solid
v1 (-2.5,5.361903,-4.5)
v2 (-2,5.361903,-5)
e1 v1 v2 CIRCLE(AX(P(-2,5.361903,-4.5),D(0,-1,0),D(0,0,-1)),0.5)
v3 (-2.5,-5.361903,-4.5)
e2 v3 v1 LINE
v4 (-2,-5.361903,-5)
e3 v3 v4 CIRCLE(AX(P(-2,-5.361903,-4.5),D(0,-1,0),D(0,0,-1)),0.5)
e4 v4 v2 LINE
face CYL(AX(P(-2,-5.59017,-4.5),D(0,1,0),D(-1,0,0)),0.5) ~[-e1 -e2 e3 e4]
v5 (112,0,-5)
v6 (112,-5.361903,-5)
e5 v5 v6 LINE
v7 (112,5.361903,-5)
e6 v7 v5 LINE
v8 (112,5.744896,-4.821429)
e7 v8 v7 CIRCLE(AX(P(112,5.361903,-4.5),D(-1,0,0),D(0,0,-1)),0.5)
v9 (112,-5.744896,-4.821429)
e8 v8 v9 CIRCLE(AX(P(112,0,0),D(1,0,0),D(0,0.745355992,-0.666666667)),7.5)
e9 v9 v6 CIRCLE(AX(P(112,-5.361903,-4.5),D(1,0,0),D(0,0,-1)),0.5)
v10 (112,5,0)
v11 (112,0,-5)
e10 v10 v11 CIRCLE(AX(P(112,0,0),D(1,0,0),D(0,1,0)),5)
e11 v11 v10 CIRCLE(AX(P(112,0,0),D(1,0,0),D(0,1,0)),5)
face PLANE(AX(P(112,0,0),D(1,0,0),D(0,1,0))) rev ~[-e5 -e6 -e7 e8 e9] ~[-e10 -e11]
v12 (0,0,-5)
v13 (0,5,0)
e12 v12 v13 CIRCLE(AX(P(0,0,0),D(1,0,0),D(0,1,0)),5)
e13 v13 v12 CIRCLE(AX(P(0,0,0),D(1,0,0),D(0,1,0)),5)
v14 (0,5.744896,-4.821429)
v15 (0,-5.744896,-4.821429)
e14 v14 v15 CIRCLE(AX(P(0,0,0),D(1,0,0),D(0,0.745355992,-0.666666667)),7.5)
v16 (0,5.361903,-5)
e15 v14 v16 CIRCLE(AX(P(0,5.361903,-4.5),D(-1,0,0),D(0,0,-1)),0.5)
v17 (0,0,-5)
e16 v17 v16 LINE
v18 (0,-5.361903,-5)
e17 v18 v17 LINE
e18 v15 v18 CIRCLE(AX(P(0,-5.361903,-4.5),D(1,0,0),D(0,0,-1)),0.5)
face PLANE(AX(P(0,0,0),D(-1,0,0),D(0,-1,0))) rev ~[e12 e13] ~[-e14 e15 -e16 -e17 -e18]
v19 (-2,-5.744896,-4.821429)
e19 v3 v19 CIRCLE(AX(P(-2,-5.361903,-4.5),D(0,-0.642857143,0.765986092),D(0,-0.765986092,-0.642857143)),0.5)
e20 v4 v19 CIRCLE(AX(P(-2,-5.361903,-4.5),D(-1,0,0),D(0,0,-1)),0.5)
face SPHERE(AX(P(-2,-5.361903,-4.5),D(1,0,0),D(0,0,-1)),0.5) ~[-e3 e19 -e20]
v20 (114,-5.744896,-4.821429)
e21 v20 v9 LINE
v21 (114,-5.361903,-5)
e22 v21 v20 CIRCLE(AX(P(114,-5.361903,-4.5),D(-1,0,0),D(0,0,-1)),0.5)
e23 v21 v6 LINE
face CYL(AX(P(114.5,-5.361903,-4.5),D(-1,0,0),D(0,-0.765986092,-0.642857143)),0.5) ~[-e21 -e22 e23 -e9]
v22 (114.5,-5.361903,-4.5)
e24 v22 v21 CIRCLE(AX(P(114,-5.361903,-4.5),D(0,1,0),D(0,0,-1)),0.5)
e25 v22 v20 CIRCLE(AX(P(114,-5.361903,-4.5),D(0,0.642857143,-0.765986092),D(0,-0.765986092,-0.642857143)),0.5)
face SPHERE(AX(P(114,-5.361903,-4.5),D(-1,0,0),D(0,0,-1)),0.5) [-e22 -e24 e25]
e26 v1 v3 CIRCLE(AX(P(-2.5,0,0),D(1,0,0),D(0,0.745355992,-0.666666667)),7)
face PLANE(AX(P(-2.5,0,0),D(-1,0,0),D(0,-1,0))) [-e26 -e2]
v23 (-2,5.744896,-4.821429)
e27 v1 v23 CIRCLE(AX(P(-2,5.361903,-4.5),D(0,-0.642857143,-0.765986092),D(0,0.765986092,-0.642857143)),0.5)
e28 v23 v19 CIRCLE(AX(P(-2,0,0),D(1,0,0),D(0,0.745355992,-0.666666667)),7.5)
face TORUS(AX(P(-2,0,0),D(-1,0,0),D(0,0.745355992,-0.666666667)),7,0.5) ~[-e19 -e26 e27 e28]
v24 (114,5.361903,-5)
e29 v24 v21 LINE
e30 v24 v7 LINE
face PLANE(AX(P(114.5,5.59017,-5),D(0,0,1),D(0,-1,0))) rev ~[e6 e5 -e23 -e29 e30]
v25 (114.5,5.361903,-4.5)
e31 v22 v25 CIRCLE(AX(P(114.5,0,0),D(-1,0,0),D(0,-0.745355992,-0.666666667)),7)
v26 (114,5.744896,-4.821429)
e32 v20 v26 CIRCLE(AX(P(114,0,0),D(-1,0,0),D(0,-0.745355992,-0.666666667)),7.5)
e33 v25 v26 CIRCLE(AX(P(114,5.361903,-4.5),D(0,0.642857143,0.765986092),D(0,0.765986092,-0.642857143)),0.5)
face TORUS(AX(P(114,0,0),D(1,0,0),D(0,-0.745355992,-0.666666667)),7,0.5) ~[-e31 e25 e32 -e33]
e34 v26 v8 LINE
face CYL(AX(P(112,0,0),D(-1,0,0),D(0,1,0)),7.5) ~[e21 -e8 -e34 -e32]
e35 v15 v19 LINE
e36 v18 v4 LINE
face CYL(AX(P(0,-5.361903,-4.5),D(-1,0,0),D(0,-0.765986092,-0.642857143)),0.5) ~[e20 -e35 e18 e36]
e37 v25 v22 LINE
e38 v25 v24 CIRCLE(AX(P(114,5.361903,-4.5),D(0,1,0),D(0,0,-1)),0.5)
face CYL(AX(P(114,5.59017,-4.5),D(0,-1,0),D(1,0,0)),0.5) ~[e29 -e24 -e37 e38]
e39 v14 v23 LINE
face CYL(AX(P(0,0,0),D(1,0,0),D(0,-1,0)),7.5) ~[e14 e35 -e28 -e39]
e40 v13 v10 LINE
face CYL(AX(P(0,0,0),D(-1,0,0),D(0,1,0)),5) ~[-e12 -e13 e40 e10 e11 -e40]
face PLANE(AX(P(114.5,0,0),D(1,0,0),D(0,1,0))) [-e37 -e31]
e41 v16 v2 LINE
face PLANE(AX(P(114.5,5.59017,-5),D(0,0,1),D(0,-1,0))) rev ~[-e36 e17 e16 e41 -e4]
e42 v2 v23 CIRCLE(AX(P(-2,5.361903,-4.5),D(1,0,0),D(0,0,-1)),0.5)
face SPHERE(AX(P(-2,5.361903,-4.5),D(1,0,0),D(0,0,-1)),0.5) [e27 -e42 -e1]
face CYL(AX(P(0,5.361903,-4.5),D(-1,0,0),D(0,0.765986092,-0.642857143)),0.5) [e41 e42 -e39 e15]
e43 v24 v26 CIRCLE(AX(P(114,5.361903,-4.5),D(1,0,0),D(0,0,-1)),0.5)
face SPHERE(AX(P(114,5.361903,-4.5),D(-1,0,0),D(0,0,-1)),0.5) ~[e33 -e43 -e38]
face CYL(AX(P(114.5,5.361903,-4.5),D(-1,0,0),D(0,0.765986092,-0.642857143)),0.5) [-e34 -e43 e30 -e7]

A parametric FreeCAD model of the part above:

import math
import FreeCAD as App
import Part
import Sketcher
Q = App.Units.Quantity


def edges_at(feature, points):
    """Names of the edges that pass closest to the given points."""
    edges = feature.Shape.Edges
    near = lambda p: min(range(len(edges)), key=lambda i: edges[i].distToShape(Part.Vertex(*p))[0])
    return sorted({f"Edge{near(p) + 1}" for p in points})

doc = App.newDocument("Part")
body = doc.addObject("PartDesign::Body", "Body")

# Sketch on YZ plane
sketch1 = doc.addObject("Sketcher::SketchObject", "Sketch")
body.addObject(sketch1)
sketch1.AttachmentSupport = (doc.YZ_Plane, [""])
sketch1.MapMode = "FlatFace"
sketch1.addGeometry(Part.Circle(App.Vector(0, 0, 0), App.Vector(0, 0, 1), 5), False)
sketch1.addConstraint([
    Sketcher.Constraint("Coincident", 0, 3, -1, 1),
    Sketcher.Constraint("Diameter", 0, Q("10 mm")),
])
pad1 = doc.addObject("PartDesign::Pad", "Pad")
body.addObject(pad1)
pad1.Profile = sketch1
pad1.Length = 112

# Sketch on YZ plane
sketch2 = doc.addObject("Sketcher::SketchObject", "Sketch001")
body.addObject(sketch2)
sketch2.AttachmentSupport = (doc.YZ_Plane, [""])
sketch2.MapMode = "FlatFace"
sketch2.addGeometry(Part.Circle(App.Vector(0, 0, 0), App.Vector(0, 0, 1), 8), False)
sketch2.addConstraint([
    Sketcher.Constraint("Coincident", 0, 3, -1, 1),
    Sketcher.Constraint("Diameter", 0, Q("15 mm")),
])
pad2 = doc.addObject("PartDesign::Pad", "Pad001")
body.addObject(pad2)
pad2.Profile = sketch2
pad2.Length = 2.5
pad2.Reversed = True

# Sketch on YZ plane
sketch3 = doc.addObject("Sketcher::SketchObject", "Sketch002")
body.addObject(sketch3)
sketch3.AttachmentSupport = (doc.YZ_Plane, [""])
sketch3.MapMode = "FlatFace"
sketch3.AttachmentOffset = App.Placement(App.Vector(0, 0, 112), App.Rotation())
sketch3.addGeometry(Part.Circle(App.Vector(0, 0, 0), App.Vector(0, 0, 1), 8), False)
sketch3.addConstraint([
    Sketcher.Constraint("Coincident", 0, 3, -1, 1),
    Sketcher.Constraint("Diameter", 0, Q("15 mm")),
])
pad3 = doc.addObject("PartDesign::Pad", "Pad002")
body.addObject(pad3)
pad3.Profile = sketch3
pad3.Length = 2.5

# Sketch on YZ plane
sketch4 = doc.addObject("Sketcher::SketchObject", "Sketch003")
body.addObject(sketch4)
sketch4.AttachmentSupport = (doc.YZ_Plane, [""])
sketch4.MapMode = "FlatFace"
sketch4.AttachmentOffset = App.Placement(App.Vector(0, 0, 114.5), App.Rotation())
sketch4.addGeometry([
    Part.LineSegment(App.Vector(6, -5, 0), App.Vector(-6, -5, 0)),
    Part.ArcOfCircle(Part.Circle(App.Vector(0, 0, 0), App.Vector(0, 0, 1), 8), math.radians(-138), math.radians(-42)),
], False)
sketch4.addConstraint([
    Sketcher.Constraint("Coincident", 0, 1, 1, 2),
    Sketcher.Constraint("Coincident", 1, 1, 0, 2),
    Sketcher.Constraint("Horizontal", 0),
    Sketcher.Constraint("Coincident", 1, 3, -1, 1),
    Sketcher.Constraint("Radius", 1, Q("7.5 mm")),
    Sketcher.Constraint("DistanceY", 0, 1, -1, 1, Q("5 mm")),
])
pocket1 = doc.addObject("PartDesign::Pocket", "Pocket")
body.addObject(pocket1)
pocket1.Profile = sketch4
pocket1.Type = "ThroughAll"
doc.recompute()

fillet = doc.addObject("PartDesign::Fillet", "Fillet")
body.addObject(fillet)
fillet.Base = (pocket1, edges_at(pocket1, [
    (-2.5, 0, -5),
    (-2.5, 0, 7.5),
    (114.5, 0, -5),
    (114.5, 0, 7.5),
    (113.25, -5.59, -5),
    (113.25, 5.59, -5),
    (-1.25, -5.59, -5),
    (-1.25, 5.59, -5),
]))
fillet.Radius = 0.5

doc.recompute()
